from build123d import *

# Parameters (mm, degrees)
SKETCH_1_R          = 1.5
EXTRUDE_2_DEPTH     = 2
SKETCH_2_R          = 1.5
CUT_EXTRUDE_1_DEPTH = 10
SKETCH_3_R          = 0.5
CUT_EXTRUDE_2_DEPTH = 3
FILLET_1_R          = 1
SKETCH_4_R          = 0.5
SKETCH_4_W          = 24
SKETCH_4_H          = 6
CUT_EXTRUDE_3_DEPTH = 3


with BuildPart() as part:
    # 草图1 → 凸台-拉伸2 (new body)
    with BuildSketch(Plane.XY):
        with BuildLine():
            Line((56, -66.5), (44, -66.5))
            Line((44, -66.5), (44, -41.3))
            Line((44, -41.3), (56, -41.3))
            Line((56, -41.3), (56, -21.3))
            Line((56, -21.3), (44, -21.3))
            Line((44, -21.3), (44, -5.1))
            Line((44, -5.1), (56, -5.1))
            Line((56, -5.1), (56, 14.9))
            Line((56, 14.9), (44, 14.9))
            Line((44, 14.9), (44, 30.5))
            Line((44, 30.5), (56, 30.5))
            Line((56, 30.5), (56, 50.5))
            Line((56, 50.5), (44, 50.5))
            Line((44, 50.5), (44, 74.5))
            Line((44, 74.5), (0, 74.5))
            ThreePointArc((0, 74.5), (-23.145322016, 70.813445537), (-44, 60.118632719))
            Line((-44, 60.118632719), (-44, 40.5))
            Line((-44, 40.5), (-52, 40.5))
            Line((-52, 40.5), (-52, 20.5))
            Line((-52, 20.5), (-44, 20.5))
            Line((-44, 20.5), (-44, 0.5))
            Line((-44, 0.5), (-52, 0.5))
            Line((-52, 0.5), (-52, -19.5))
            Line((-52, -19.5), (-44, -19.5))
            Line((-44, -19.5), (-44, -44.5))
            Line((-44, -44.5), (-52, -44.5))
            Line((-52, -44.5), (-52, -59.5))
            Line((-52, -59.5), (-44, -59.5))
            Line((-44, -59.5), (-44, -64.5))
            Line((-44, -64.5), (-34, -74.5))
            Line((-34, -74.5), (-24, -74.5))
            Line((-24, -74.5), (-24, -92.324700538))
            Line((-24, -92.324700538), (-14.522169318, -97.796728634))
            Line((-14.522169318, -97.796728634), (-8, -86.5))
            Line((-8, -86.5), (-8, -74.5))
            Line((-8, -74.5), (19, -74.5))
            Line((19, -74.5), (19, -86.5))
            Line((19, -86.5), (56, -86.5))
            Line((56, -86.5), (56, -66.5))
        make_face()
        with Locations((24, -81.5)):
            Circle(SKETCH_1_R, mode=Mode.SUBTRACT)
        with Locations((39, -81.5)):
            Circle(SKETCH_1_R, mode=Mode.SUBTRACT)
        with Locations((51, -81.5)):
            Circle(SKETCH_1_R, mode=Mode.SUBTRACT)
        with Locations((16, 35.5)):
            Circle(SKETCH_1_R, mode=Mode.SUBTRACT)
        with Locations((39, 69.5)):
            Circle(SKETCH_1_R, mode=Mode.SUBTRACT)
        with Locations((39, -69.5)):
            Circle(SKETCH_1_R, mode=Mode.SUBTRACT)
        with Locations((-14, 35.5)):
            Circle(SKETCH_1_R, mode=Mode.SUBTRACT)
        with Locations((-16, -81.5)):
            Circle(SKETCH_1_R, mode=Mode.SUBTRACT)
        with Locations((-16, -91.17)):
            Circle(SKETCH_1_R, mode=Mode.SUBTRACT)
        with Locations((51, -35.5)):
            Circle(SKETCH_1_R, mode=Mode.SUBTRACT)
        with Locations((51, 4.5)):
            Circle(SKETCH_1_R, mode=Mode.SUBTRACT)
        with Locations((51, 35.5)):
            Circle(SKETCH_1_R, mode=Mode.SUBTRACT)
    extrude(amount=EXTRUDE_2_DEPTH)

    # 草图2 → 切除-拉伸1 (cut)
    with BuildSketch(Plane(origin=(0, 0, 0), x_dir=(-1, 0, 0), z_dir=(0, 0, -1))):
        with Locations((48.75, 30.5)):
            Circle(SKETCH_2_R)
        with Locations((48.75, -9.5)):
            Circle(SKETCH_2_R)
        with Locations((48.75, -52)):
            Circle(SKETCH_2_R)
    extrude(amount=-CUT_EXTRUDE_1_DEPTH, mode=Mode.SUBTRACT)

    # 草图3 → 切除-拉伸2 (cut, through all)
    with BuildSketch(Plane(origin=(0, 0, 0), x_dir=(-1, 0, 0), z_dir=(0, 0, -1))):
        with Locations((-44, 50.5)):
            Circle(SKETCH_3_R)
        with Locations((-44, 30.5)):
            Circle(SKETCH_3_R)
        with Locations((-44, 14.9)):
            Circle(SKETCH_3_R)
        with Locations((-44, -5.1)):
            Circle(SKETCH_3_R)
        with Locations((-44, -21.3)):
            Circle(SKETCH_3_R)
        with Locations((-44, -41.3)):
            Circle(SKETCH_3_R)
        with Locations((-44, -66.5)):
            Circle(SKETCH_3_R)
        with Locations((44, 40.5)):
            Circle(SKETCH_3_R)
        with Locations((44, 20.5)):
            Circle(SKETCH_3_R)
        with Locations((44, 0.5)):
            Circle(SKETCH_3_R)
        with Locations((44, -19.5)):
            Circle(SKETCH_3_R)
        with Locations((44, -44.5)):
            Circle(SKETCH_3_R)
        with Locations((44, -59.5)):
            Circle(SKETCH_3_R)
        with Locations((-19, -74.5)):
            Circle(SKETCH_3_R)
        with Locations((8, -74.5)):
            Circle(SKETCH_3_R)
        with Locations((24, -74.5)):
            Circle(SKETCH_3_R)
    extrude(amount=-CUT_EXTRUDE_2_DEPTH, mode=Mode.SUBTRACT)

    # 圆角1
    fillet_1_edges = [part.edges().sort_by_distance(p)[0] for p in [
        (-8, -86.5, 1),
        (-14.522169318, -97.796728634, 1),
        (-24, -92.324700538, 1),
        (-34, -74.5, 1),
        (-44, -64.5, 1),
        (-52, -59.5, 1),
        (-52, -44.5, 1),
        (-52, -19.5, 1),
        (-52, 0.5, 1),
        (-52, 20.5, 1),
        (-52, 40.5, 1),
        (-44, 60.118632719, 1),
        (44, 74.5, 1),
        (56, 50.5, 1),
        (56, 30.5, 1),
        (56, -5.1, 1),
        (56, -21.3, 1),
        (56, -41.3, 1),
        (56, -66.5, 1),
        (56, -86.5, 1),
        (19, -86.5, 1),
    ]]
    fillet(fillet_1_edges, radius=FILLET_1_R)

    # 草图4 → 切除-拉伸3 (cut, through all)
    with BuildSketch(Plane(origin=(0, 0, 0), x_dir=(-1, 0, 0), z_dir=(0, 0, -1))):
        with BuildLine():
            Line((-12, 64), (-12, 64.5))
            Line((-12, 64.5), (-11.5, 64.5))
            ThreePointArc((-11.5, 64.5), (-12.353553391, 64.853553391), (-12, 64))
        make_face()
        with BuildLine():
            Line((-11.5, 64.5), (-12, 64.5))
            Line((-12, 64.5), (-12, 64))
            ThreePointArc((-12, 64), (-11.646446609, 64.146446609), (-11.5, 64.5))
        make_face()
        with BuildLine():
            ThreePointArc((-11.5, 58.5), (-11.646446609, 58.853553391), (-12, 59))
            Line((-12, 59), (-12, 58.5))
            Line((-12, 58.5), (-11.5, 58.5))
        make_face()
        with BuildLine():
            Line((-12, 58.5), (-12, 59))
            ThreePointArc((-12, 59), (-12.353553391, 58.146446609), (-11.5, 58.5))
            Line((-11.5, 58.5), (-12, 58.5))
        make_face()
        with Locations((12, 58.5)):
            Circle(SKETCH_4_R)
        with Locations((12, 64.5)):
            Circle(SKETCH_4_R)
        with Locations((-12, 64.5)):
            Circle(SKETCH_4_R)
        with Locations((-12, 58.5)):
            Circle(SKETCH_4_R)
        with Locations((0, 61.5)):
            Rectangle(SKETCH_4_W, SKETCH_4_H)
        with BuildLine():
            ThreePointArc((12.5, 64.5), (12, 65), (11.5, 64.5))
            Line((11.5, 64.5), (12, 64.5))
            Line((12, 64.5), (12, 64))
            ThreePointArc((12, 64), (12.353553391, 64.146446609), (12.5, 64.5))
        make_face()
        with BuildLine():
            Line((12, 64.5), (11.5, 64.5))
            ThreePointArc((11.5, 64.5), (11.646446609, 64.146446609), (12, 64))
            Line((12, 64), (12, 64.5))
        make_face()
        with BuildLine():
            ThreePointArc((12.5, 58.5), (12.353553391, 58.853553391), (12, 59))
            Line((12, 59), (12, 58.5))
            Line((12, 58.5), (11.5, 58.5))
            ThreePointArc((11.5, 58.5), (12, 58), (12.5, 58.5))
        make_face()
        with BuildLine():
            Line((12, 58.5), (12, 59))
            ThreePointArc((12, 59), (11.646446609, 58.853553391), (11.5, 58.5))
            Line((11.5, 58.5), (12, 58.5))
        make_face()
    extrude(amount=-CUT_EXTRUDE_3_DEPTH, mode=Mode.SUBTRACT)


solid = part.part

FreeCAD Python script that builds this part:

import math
import FreeCAD as App
import Part
import Sketcher
Q = App.Units.Quantity


def edges_at(feature, points):
    """Names of the edges that pass closest to the given points."""
    edges = feature.Shape.Edges
    near = lambda p: min(range(len(edges)), key=lambda i: edges[i].distToShape(Part.Vertex(*p))[0])
    return sorted({f"Edge{near(p) + 1}" for p in points})

doc = App.newDocument("Part")
body = doc.addObject("PartDesign::Body", "Body")

# Sketch on XY plane
sketch1 = body.newObject("Sketcher::SketchObject", "Sketch")
sketch1.AttachmentSupport = (doc.getObject("XY_Plane"), [""])
sketch1.MapMode = "FlatFace"
sketch1.addGeometry(Part.LineSegment(App.Vector(56, -66.5, 0), App.Vector(44, -66.5, 0)), False)
sketch1.addGeometry(Part.LineSegment(App.Vector(44, -66.5, 0), App.Vector(44, -41.3, 0)), False)
sketch1.addGeometry(Part.LineSegment(App.Vector(44, -41.3, 0), App.Vector(56, -41.3, 0)), False)
sketch1.addGeometry(Part.LineSegment(App.Vector(56, -41.3, 0), App.Vector(56, -21.3, 0)), False)
sketch1.addGeometry(Part.LineSegment(App.Vector(56, -21.3, 0), App.Vector(44, -21.3, 0)), False)
sketch1.addGeometry(Part.LineSegment(App.Vector(44, -21.3, 0), App.Vector(44, -5.1, 0)), False)
sketch1.addGeometry(Part.LineSegment(App.Vector(44, -5.1, 0), App.Vector(56, -5.1, 0)), False)
sketch1.addGeometry(Part.LineSegment(App.Vector(56, -5.1, 0), App.Vector(56, 14.9, 0)), False)
sketch1.addGeometry(Part.LineSegment(App.Vector(56, 14.9, 0), App.Vector(44, 14.9, 0)), False)
sketch1.addGeometry(Part.LineSegment(App.Vector(44, 14.9, 0), App.Vector(44, 30.5, 0)), False)
sketch1.addGeometry(Part.LineSegment(App.Vector(44, 30.5, 0), App.Vector(56, 30.5, 0)), False)
sketch1.addGeometry(Part.LineSegment(App.Vector(56, 30.5, 0), App.Vector(56, 50.5, 0)), False)
sketch1.addGeometry(Part.LineSegment(App.Vector(56, 50.5, 0), App.Vector(44, 50.5, 0)), False)
sketch1.addGeometry(Part.LineSegment(App.Vector(44, 50.5, 0), App.Vector(44, 74.5, 0)), False)
sketch1.addGeometry(Part.LineSegment(App.Vector(44, 74.5, 0), App.Vector(0, 74.5, 0)), False)
sketch1.addGeometry(Part.ArcOfCircle(Part.Circle(App.Vector(0, 0, 0), App.Vector(0, 0, 1), 74.5), math.radians(90), math.radians(126.199884)), False)
sketch1.addGeometry(Part.LineSegment(App.Vector(-44, 60.118633, 0), App.Vector(-44, 40.5, 0)), False)
sketch1.addGeometry(Part.LineSegment(App.Vector(-44, 40.5, 0), App.Vector(-52, 40.5, 0)), False)
sketch1.addGeometry(Part.LineSegment(App.Vector(-52, 40.5, 0), App.Vector(-52, 20.5, 0)), False)
sketch1.addGeometry(Part.LineSegment(App.Vector(-52, 20.5, 0), App.Vector(-44, 20.5, 0)), False)
sketch1.addGeometry(Part.LineSegment(App.Vector(-44, 20.5, 0), App.Vector(-44, 0.5, 0)), False)
sketch1.addGeometry(Part.LineSegment(App.Vector(-44, 0.5, 0), App.Vector(-52, 0.5, 0)), False)
sketch1.addGeometry(Part.LineSegment(App.Vector(-52, 0.5, 0), App.Vector(-52, -19.5, 0)), False)
sketch1.addGeometry(Part.LineSegment(App.Vector(-52, -19.5, 0), App.Vector(-44, -19.5, 0)), False)
sketch1.addGeometry(Part.LineSegment(App.Vector(-44, -19.5, 0), App.Vector(-44, -44.5, 0)), False)
sketch1.addGeometry(Part.LineSegment(App.Vector(-44, -44.5, 0), App.Vector(-52, -44.5, 0)), False)
sketch1.addGeometry(Part.LineSegment(App.Vector(-52, -44.5, 0), App.Vector(-52, -59.5, 0)), False)
sketch1.addGeometry(Part.LineSegment(App.Vector(-52, -59.5, 0), App.Vector(-44, -59.5, 0)), False)
sketch1.addGeometry(Part.LineSegment(App.Vector(-44, -59.5, 0), App.Vector(-44, -64.5, 0)), False)
sketch1.addGeometry(Part.LineSegment(App.Vector(-44, -64.5, 0), App.Vector(-34, -74.5, 0)), False)
sketch1.addGeometry(Part.LineSegment(App.Vector(-34, -74.5, 0), App.Vector(-24, -74.5, 0)), False)
sketch1.addGeometry(Part.LineSegment(App.Vector(-24, -74.5, 0), App.Vector(-24, -92.324701, 0)), False)
sketch1.addGeometry(Part.LineSegment(App.Vector(-24, -92.324701, 0), App.Vector(-14.522169, -97.796729, 0)), False)
sketch1.addGeometry(Part.LineSegment(App.Vector(-14.522169, -97.796729, 0), App.Vector(-8, -86.5, 0)), False)
sketch1.addGeometry(Part.LineSegment(App.Vector(-8, -86.5, 0), App.Vector(-8, -74.5, 0)), False)
sketch1.addGeometry(Part.LineSegment(App.Vector(-8, -74.5, 0), App.Vector(19, -74.5, 0)), False)
sketch1.addGeometry(Part.LineSegment(App.Vector(19, -74.5, 0), App.Vector(19, -86.5, 0)), False)
sketch1.addGeometry(Part.LineSegment(App.Vector(19, -86.5, 0), App.Vector(56, -86.5, 0)), False)
sketch1.addGeometry(Part.LineSegment(App.Vector(56, -86.5, 0), App.Vector(56, -66.5, 0)), False)
sketch1.addGeometry(Part.Circle(App.Vector(-16, -91.17, 0), App.Vector(0, 0, 1), 1.5), False)
sketch1.addGeometry(Part.Circle(App.Vector(-16, -81.5, 0), App.Vector(0, 0, 1), 1.5), False)
sketch1.addGeometry(Part.Circle(App.Vector(24, -81.5, 0), App.Vector(0, 0, 1), 1.5), False)
sketch1.addGeometry(Part.Circle(App.Vector(39, -81.5, 0), App.Vector(0, 0, 1), 1.5), False)
sketch1.addGeometry(Part.Circle(App.Vector(51, -81.5, 0), App.Vector(0, 0, 1), 1.5), False)
sketch1.addGeometry(Part.Circle(App.Vector(39, -69.5, 0), App.Vector(0, 0, 1), 1.5), False)
sketch1.addGeometry(Part.Circle(App.Vector(51, -35.5, 0), App.Vector(0, 0, 1), 1.5), False)
sketch1.addGeometry(Part.Circle(App.Vector(-14, 35.5, 0), App.Vector(0, 0, 1), 1.5), False)
sketch1.addGeometry(Part.Circle(App.Vector(16, 35.5, 0), App.Vector(0, 0, 1), 1.5), False)
sketch1.addGeometry(Part.Circle(App.Vector(51, 4.5, 0), App.Vector(0, 0, 1), 1.5), False)
sketch1.addGeometry(Part.Circle(App.Vector(51, 35.5, 0), App.Vector(0, 0, 1), 1.5), False)
sketch1.addGeometry(Part.Circle(App.Vector(39, 69.5, 0), App.Vector(0, 0, 1), 1.5), False)
sketch1.addConstraint(Sketcher.Constraint("Coincident", 0, 2, 1, 1))
sketch1.addConstraint(Sketcher.Constraint("Coincident", 1, 2, 2, 1))
sketch1.addConstraint(Sketcher.Constraint("Coincident", 2, 2, 3, 1))
sketch1.addConstraint(Sketcher.Constraint("Coincident", 3, 2, 4, 1))
sketch1.addConstraint(Sketcher.Constraint("Coincident", 4, 2, 5, 1))
sketch1.addConstraint(Sketcher.Constraint("Coincident", 5, 2, 6, 1))
sketch1.addConstraint(Sketcher.Constraint("Coincident", 6, 2, 7, 1))
sketch1.addConstraint(Sketcher.Constraint("Coincident", 7, 2, 8, 1))
sketch1.addConstraint(Sketcher.Constraint("Coincident", 8, 2, 9, 1))
sketch1.addConstraint(Sketcher.Constraint("Coincident", 9, 2, 10, 1))
sketch1.addConstraint(Sketcher.Constraint("Coincident", 10, 2, 11, 1))
sketch1.addConstraint(Sketcher.Constraint("Coincident", 11, 2, 12, 1))
sketch1.addConstraint(Sketcher.Constraint("Coincident", 12, 2, 13, 1))
sketch1.addConstraint(Sketcher.Constraint("Coincident", 13, 2, 14, 1))
sketch1.addConstraint(Sketcher.Constraint("Tangent", 14, 2, 15, 1))
sketch1.addConstraint(Sketcher.Constraint("Coincident", 15, 2, 16, 1))
sketch1.addConstraint(Sketcher.Constraint("Coincident", 16, 2, 17, 1))
sketch1.addConstraint(Sketcher.Constraint("Coincident", 17, 2, 18, 1))
sketch1.addConstraint(Sketcher.Constraint("Coincident", 18, 2, 19, 1))
sketch1.addConstraint(Sketcher.Constraint("Coincident", 19, 2, 20, 1))
sketch1.addConstraint(Sketcher.Constraint("Coincident", 20, 2, 21, 1))
sketch1.addConstraint(Sketcher.Constraint("Coincident", 21, 2, 22, 1))
sketch1.addConstraint(Sketcher.Constraint("Coincident", 22, 2, 23, 1))
sketch1.addConstraint(Sketcher.Constraint("Coincident", 23, 2, 24, 1))
sketch1.addConstraint(Sketcher.Constraint("Coincident", 24, 2, 25, 1))
sketch1.addConstraint(Sketcher.Constraint("Coincident", 25, 2, 26, 1))
sketch1.addConstraint(Sketcher.Constraint("Coincident", 26, 2, 27, 1))
sketch1.addConstraint(Sketcher.Constraint("Coincident", 27, 2, 28, 1))
sketch1.addConstraint(Sketcher.Constraint("Coincident", 28, 2, 29, 1))
sketch1.addConstraint(Sketcher.Constraint("Coincident", 29, 2, 30, 1))
sketch1.addConstraint(Sketcher.Constraint("Coincident", 30, 2, 31, 1))
sketch1.addConstraint(Sketcher.Constraint("Coincident", 31, 2, 32, 1))
sketch1.addConstraint(Sketcher.Constraint("Coincident", 32, 2, 33, 1))
sketch1.addConstraint(Sketcher.Constraint("Coincident", 33, 2, 34, 1))
sketch1.addConstraint(Sketcher.Constraint("Coincident", 34, 2, 35, 1))
sketch1.addConstraint(Sketcher.Constraint("Coincident", 35, 2, 36, 1))
sketch1.addConstraint(Sketcher.Constraint("Coincident", 36, 2, 37, 1))
sketch1.addConstraint(Sketcher.Constraint("Coincident", 37, 2, 38, 1))
sketch1.addConstraint(Sketcher.Constraint("Coincident", 38, 2, 0, 1))
sketch1.addConstraint(Sketcher.Constraint("Horizontal", 0))
sketch1.addConstraint(Sketcher.Constraint("Vertical", 1))
sketch1.addConstraint(Sketcher.Constraint("Horizontal", 2))
sketch1.addConstraint(Sketcher.Constraint("Vertical", 3))
sketch1.addConstraint(Sketcher.Constraint("Horizontal", 4))
sketch1.addConstraint(Sketcher.Constraint("Vertical", 5))
sketch1.addConstraint(Sketcher.Constraint("Horizontal", 6))
sketch1.addConstraint(Sketcher.Constraint("Vertical", 7))
sketch1.addConstraint(Sketcher.Constraint("Horizontal", 8))
sketch1.addConstraint(Sketcher.Constraint("Vertical", 9))
sketch1.addConstraint(Sketcher.Constraint("Horizontal", 10))
sketch1.addConstraint(Sketcher.Constraint("Vertical", 11))
sketch1.addConstraint(Sketcher.Constraint("Horizontal", 12))
sketch1.addConstraint(Sketcher.Constraint("Vertical", 13))
sketch1.addConstraint(Sketcher.Constraint("Horizontal", 14))
sketch1.addConstraint(Sketcher.Constraint("Vertical", 16))
sketch1.addConstraint(Sketcher.Constraint("Horizontal", 17))
sketch1.addConstraint(Sketcher.Constraint("Vertical", 18))
sketch1.addConstraint(Sketcher.Constraint("Horizontal", 19))
sketch1.addConstraint(Sketcher.Constraint("Vertical", 20))
sketch1.addConstraint(Sketcher.Constraint("Horizontal", 21))
sketch1.addConstraint(Sketcher.Constraint("Vertical", 22))
sketch1.addConstraint(Sketcher.Constraint("Horizontal", 23))
sketch1.addConstraint(Sketcher.Constraint("Vertical", 24))
sketch1.addConstraint(Sketcher.Constraint("Horizontal", 25))
sketch1.addConstraint(Sketcher.Constraint("Vertical", 26))
sketch1.addConstraint(Sketcher.Constraint("Horizontal", 27))
sketch1.addConstraint(Sketcher.Constraint("Vertical", 28))
sketch1.addConstraint(Sketcher.Constraint("Horizontal", 30))
sketch1.addConstraint(Sketcher.Constraint("Vertical", 31))
sketch1.addConstraint(Sketcher.Constraint("Vertical", 34))
sketch1.addConstraint(Sketcher.Constraint("Horizontal", 35))
sketch1.addConstraint(Sketcher.Constraint("Vertical", 36))
sketch1.addConstraint(Sketcher.Constraint("Horizontal", 37))
sketch1.addConstraint(Sketcher.Constraint("Vertical", 38))
sketch1.addConstraint(Sketcher.Constraint("Coincident", 15, 3, -1, 1))
sketch1.addConstraint(Sketcher.Constraint("Equal", 39, 40))
sketch1.addConstraint(Sketcher.Constraint("Equal", 40, 41))
sketch1.addConstraint(Sketcher.Constraint("Equal", 41, 42))
sketch1.addConstraint(Sketcher.Constraint("Equal", 42, 43))
sketch1.addConstraint(Sketcher.Constraint("Equal", 43, 44))
sketch1.addConstraint(Sketcher.Constraint("Equal", 44, 45))
sketch1.addConstraint(Sketcher.Constraint("Equal", 45, 46))
sketch1.addConstraint(Sketcher.Constraint("Equal", 46, 47))
sketch1.addConstraint(Sketcher.Constraint("Equal", 47, 48))
sketch1.addConstraint(Sketcher.Constraint("Equal", 48, 49))
sketch1.addConstraint(Sketcher.Constraint("Equal", 49, 50))
sketch1.addConstraint(Sketcher.Constraint("Symmetric", 45, 3, 49, 3, -1))
sketch1.addConstraint(Sketcher.Constraint("Symmetric", 44, 3, 50, 3, -1))
sketch1.addConstraint(Sketcher.Constraint("Perpendicular", 32, 33))
sketch1.addConstraint(Sketcher.Constraint("Horizontal", 40, 3, 41, 3))
sketch1.addConstraint(Sketcher.Constraint("Horizontal", 41, 3, 42, 3))
sketch1.addConstraint(Sketcher.Constraint("Horizontal", 42, 3, 43, 3))
sketch1.addConstraint(Sketcher.Constraint("Horizontal", 46, 3, 47, 3))
sketch1.addConstraint(Sketcher.Constraint("Horizontal", 47, 3, 49, 3))
sketch1.addConstraint(Sketcher.Constraint("Horizontal", 30, 2, 34, 2))
sketch1.addConstraint(Sketcher.Constraint("Horizontal", 33, 2, 36, 2))
sketch1.addConstraint(Sketcher.Constraint("Vertical", 39, 3, 40, 3))
sketch1.addConstraint(Sketcher.Constraint("Vertical", 42, 3, 44, 3))
sketch1.addConstraint(Sketcher.Constraint("Vertical", 43, 3, 45, 3))
sketch1.addConstraint(Sketcher.Constraint("Vertical", 45, 3, 48, 3))
sketch1.addConstraint(Sketcher.Constraint("Vertical", 1, 2, 4, 2))
sketch1.addConstraint(Sketcher.Constraint("Vertical", 3, 2, 6, 2))
sketch1.addConstraint(Sketcher.Constraint("Vertical", 5, 2, 8, 2))
sketch1.addConstraint(Sketcher.Constraint("Vertical", 7, 2, 10, 2))
sketch1.addConstraint(Sketcher.Constraint("Vertical", 9, 2, 12, 2))
sketch1.addConstraint(Sketcher.Constraint("Vertical", 16, 2, 19, 2))
sketch1.addConstraint(Sketcher.Constraint("Vertical", 18, 2, 21, 2))
sketch1.addConstraint(Sketcher.Constraint("Vertical", 20, 2, 23, 2))
sketch1.addConstraint(Sketcher.Constraint("Vertical", 22, 2, 25, 2))
sketch1.addConstraint(Sketcher.Constraint("Vertical", 24, 2, 27, 2))
sketch1.addConstraint(Sketcher.Constraint("Vertical", 11, 2, 37, 2))
sketch1.addConstraint(Sketcher.Constraint("Equal", 3, 7))
sketch1.addConstraint(Sketcher.Constraint("Equal", 7, 11))
sketch1.addConstraint(Sketcher.Constraint("Equal", 11, 18))
sketch1.addConstraint(Sketcher.Constraint("Equal", 18, 20))
sketch1.addConstraint(Sketcher.Constraint("Equal", 20, 22))
sketch1.addConstraint(Sketcher.Constraint("Equal", 12, 34))
sketch1.addConstraint(Sketcher.Constraint("Equal", 22, 38))
sketch1.addConstraint(Sketcher.Constraint("Diameter", 39, 3.0))
sketch1.addConstraint(Sketcher.Constraint("Radius", 15, 74.5))
sketch1.addConstraint(Sketcher.Constraint("DistanceX", 0, 2, 0, 1, 12.0))
sketch1.addConstraint(Sketcher.Constraint("DistanceX", 14, 2, 14, 1, 44.0))
sketch1.addConstraint(Sketcher.Constraint("DistanceX", 17, 2, 17, 1, 8.0))
sketch1.addConstraint(Sketcher.Constraint("DistanceX", 30, 1, 30, 2, 10.0))
sketch1.addConstraint(Sketcher.Constraint("DistanceX", 35, 1, 35, 2, 27.0))
sketch1.addConstraint(Sketcher.Constraint("DistanceX", 37, 1, 37, 2, 37.0))
sketch1.addConstraint(Sketcher.Constraint("DistanceY", 3, 1, 3, 2, 20.0))
sketch1.addConstraint(Sketcher.Constraint("DistanceY", 13, 1, 13, 2, 24.0))
sketch1.addConstraint(Sketcher.Constraint("DistanceY", 24, 2, 24, 1, 25.0))
sketch1.addConstraint(Sketcher.Constraint("DistanceY", 26, 2, 26, 1, 15.0))
sketch1.addConstraint(Sketcher.Constraint("DistanceY", 28, 2, 28, 1, 5.0))
sketch1.addConstraint(Sketcher.Constraint("Angle", 29, Q("-45 deg")))
sketch1.addConstraint(Sketcher.Constraint("Angle", 32, Q("-30 deg")))
sketch1.addConstraint(Sketcher.Constraint("DistanceY", 1, 1, 1, 2, 25.2))
sketch1.addConstraint(Sketcher.Constraint("DistanceY", 5, 1, 5, 2, 16.2))
sketch1.addConstraint(Sketcher.Constraint("DistanceY", 9, 1, 9, 2, 15.6))
sketch1.addConstraint(Sketcher.Constraint("DistanceX", 39, 3, -1, 1, 16.0))
sketch1.addConstraint(Sketcher.Constraint("DistanceX", -1, 1, 41, 3, 24.0))
sketch1.addConstraint(Sketcher.Constraint("DistanceX", -1, 1, 42, 3, 39.0))
sketch1.addConstraint(Sketcher.Constraint("DistanceX", -1, 1, 43, 3, 51.0))
sketch1.addConstraint(Sketcher.Constraint("DistanceX", 46, 3, -1, 1, 14.0))
sketch1.addConstraint(Sketcher.Constraint("DistanceX", -1, 1, 47, 3, 16.0))
sketch1.addConstraint(Sketcher.Constraint("DistanceX", 15, 2, -1, 1, 44.0))
sketch1.addConstraint(Sketcher.Constraint("DistanceX", 29, 2, -1, 1, 34.0))
sketch1.addConstraint(Sketcher.Constraint("DistanceY", 42, 3, 44, 3, 12.0))
sketch1.addConstraint(Sketcher.Constraint("DistanceY", 44, 3, 45, 3, 34.0))
sketch1.addConstraint(Sketcher.Constraint("DistanceY", 45, 3, 46, 3, 71.0))
sketch1.addConstraint(Sketcher.Constraint("DistanceY", 45, 3, 48, 3, 40.0))
sketch1.addConstraint(Sketcher.Constraint("DistanceY", 39, 3, -1, 1, 91.17))
sketch1.addConstraint(Sketcher.Constraint("DistanceY", 31, 2, 31, 1, 17.824701))
pad1 = body.newObject("PartDesign::Pad", "Pad")
pad1.Profile = sketch1
pad1.Length = 2

# Sketch on XY plane
sketch2 = body.newObject("Sketcher::SketchObject", "Sketch001")
sketch2.AttachmentSupport = (doc.getObject("XY_Plane"), [""])
sketch2.MapMode = "FlatFace"
sketch2.addGeometry(Part.Circle(App.Vector(-48.75, 30.5, 0), App.Vector(0, 0, 1), 1.5), False)
sketch2.addGeometry(Part.Circle(App.Vector(-48.75, -9.5, 0), App.Vector(0, 0, 1), 1.5), False)
sketch2.addGeometry(Part.Circle(App.Vector(-48.75, -52, 0), App.Vector(0, 0, 1), 1.5), False)
sketch2.addConstraint(Sketcher.Constraint("Equal", 0, 1))
sketch2.addConstraint(Sketcher.Constraint("Equal", 1, 2))
sketch2.addConstraint(Sketcher.Constraint("Vertical", 0, 3, 1, 3))
sketch2.addConstraint(Sketcher.Constraint("Vertical", 1, 3, 2, 3))
sketch2.addConstraint(Sketcher.Constraint("Diameter", 0, 3.0))
sketch2.addConstraint(Sketcher.Constraint("DistanceY", 2, 3, -1, 1, 52.0))
sketch2.addConstraint(Sketcher.Constraint("DistanceY", 1, 3, 0, 3, 40.0))
sketch2.addConstraint(Sketcher.Constraint("DistanceY", -1, 1, 0, 3, 30.5))
sketch2.addConstraint(Sketcher.Constraint("DistanceX", 0, 3, -1, 1, 48.75))
pocket1 = body.newObject("PartDesign::Pocket", "Pocket")
pocket1.Profile = sketch2
pocket1.Length = 10
pocket1.Reversed = True

# Sketch on XY plane
sketch3 = body.newObject("Sketcher::SketchObject", "Sketch002")
sketch3.AttachmentSupport = (doc.getObject("XY_Plane"), [""])
sketch3.MapMode = "FlatFace"
sketch3.addGeometry(Part.Circle(App.Vector(44, 50.5, 0), App.Vector(0, 0, 1), 0.5), False)
sketch3.addGeometry(Part.Circle(App.Vector(44, 30.5, 0), App.Vector(0, 0, 1), 0.5), False)
sketch3.addGeometry(Part.Circle(App.Vector(44, 14.9, 0), App.Vector(0, 0, 1), 0.5), False)
sketch3.addGeometry(Part.Circle(App.Vector(44, -5.1, 0), App.Vector(0, 0, 1), 0.5), False)
sketch3.addGeometry(Part.Circle(App.Vector(44, -21.3, 0), App.Vector(0, 0, 1), 0.5), False)
sketch3.addGeometry(Part.Circle(App.Vector(44, -41.3, 0), App.Vector(0, 0, 1), 0.5), False)
sketch3.addGeometry(Part.Circle(App.Vector(44, -66.5, 0), App.Vector(0, 0, 1), 0.5), False)
sketch3.addGeometry(Part.Circle(App.Vector(-44, 40.5, 0), App.Vector(0, 0, 1), 0.5), False)
sketch3.addGeometry(Part.Circle(App.Vector(-44, 20.5, 0), App.Vector(0, 0, 1), 0.5), False)
sketch3.addGeometry(Part.Circle(App.Vector(-44, 0.5, 0), App.Vector(0, 0, 1), 0.5), False)
sketch3.addGeometry(Part.Circle(App.Vector(-44, -19.5, 0), App.Vector(0, 0, 1), 0.5), False)
sketch3.addGeometry(Part.Circle(App.Vector(-44, -44.5, 0), App.Vector(0, 0, 1), 0.5), False)
sketch3.addGeometry(Part.Circle(App.Vector(-44, -59.5, 0), App.Vector(0, 0, 1), 0.5), False)
sketch3.addGeometry(Part.Circle(App.Vector(19, -74.5, 0), App.Vector(0, 0, 1), 0.5), False)
sketch3.addGeometry(Part.Circle(App.Vector(-8, -74.5, 0), App.Vector(0, 0, 1), 0.5), False)
sketch3.addGeometry(Part.Circle(App.Vector(-24, -74.5, 0), App.Vector(0, 0, 1), 0.5), False)
sketch3.addConstraint(Sketcher.Constraint("Equal", 0, 1))
sketch3.addConstraint(Sketcher.Constraint("Equal", 1, 2))
sketch3.addConstraint(Sketcher.Constraint("Equal", 2, 3))
sketch3.addConstraint(Sketcher.Constraint("Equal", 3, 4))
sketch3.addConstraint(Sketcher.Constraint("Equal", 4, 5))
sketch3.addConstraint(Sketcher.Constraint("Equal", 5, 6))
sketch3.addConstraint(Sketcher.Constraint("Equal", 6, 7))
sketch3.addConstraint(Sketcher.Constraint("Equal", 7, 8))
sketch3.addConstraint(Sketcher.Constraint("Equal", 8, 9))
sketch3.addConstraint(Sketcher.Constraint("Equal", 9, 10))
sketch3.addConstraint(Sketcher.Constraint("Equal", 10, 11))
sketch3.addConstraint(Sketcher.Constraint("Equal", 11, 12))
sketch3.addConstraint(Sketcher.Constraint("Equal", 12, 13))
sketch3.addConstraint(Sketcher.Constraint("Equal", 13, 14))
sketch3.addConstraint(Sketcher.Constraint("Equal", 14, 15))
sketch3.addConstraint(Sketcher.Constraint("Horizontal", 13, 3, 14, 3))
sketch3.addConstraint(Sketcher.Constraint("Horizontal", 14, 3, 15, 3))
sketch3.addConstraint(Sketcher.Constraint("Vertical", 0, 3, 1, 3))
sketch3.addConstraint(Sketcher.Constraint("Vertical", 1, 3, 2, 3))
sketch3.addConstraint(Sketcher.Constraint("Vertical", 2, 3, 3, 3))
sketch3.addConstraint(Sketcher.Constraint("Vertical", 3, 3, 4, 3))
sketch3.addConstraint(Sketcher.Constraint("Vertical", 4, 3, 5, 3))
sketch3.addConstraint(Sketcher.Constraint("Vertical", 5, 3, 6, 3))
sketch3.addConstraint(Sketcher.Constraint("Vertical", 7, 3, 8, 3))
sketch3.addConstraint(Sketcher.Constraint("Vertical", 8, 3, 9, 3))
sketch3.addConstraint(Sketcher.Constraint("Vertical", 9, 3, 10, 3))
sketch3.addConstraint(Sketcher.Constraint("Vertical", 10, 3, 11, 3))
sketch3.addConstraint(Sketcher.Constraint("Vertical", 11, 3, 12, 3))
sketch3.addConstraint(Sketcher.Constraint("Diameter", 0, 1.0))
sketch3.addConstraint(Sketcher.Constraint("DistanceX", -1, 1, 0, 3, 44.0))
sketch3.addConstraint(Sketcher.Constraint("DistanceX", 7, 3, -1, 1, 44.0))
sketch3.addConstraint(Sketcher.Constraint("DistanceX", -1, 1, 13, 3, 19.0))
sketch3.addConstraint(Sketcher.Constraint("DistanceX", 14, 3, -1, 1, 8.0))
sketch3.addConstraint(Sketcher.Constraint("DistanceX", 15, 3, -1, 1, 24.0))
sketch3.addConstraint(Sketcher.Constraint("DistanceY", 1, 3, 0, 3, 20.0))
sketch3.addConstraint(Sketcher.Constraint("DistanceY", 3, 3, 2, 3, 20.0))
sketch3.addConstraint(Sketcher.Constraint("DistanceY", 5, 3, 4, 3, 20.0))
sketch3.addConstraint(Sketcher.Constraint("DistanceY", 6, 3, 1, 3, 97.0))
sketch3.addConstraint(Sketcher.Constraint("DistanceY", 7, 3, 0, 3, 10.0))
sketch3.addConstraint(Sketcher.Constraint("DistanceY", 8, 3, 7, 3, 20.0))
sketch3.addConstraint(Sketcher.Constraint("DistanceY", 9, 3, 8, 3, 20.0))
sketch3.addConstraint(Sketcher.Constraint("DistanceY", 10, 3, 9, 3, 20.0))
sketch3.addConstraint(Sketcher.Constraint("DistanceY", 11, 3, 10, 3, 25.0))
sketch3.addConstraint(Sketcher.Constraint("DistanceY", 12, 3, 11, 3, 15.0))
sketch3.addConstraint(Sketcher.Constraint("DistanceY", 13, 3, 6, 3, 8.0))
sketch3.addConstraint(Sketcher.Constraint("DistanceY", -1, 1, 0, 3, 50.5))
sketch3.addConstraint(Sketcher.Constraint("DistanceY", -1, 1, 2, 3, 14.9))
sketch3.addConstraint(Sketcher.Constraint("DistanceY", 4, 3, -1, 1, 21.3))
pocket2 = body.newObject("PartDesign::Pocket", "Pocket001")
pocket2.Profile = sketch3
pocket2.Type = "ThroughAll"
pocket2.Reversed = True
doc.recompute()

fillet = body.newObject("PartDesign::Fillet", "Fillet")
fillet.Base = (pocket2, edges_at(pocket2, [
    (-8, -86.5, 1),
    (-14.522, -97.797, 1),
    (-24, -92.325, 1),
    (-34, -74.5, 1),
    (-44, -64.5, 1),
    (-52, -59.5, 1),
    (-52, -44.5, 1),
    (-52, -19.5, 1),
    (-52, 0.5, 1),
    (-52, 20.5, 1),
    (-52, 40.5, 1),
    (-44, 60.119, 1),
    (44, 74.5, 1),
    (56, 50.5, 1),
    (56, 30.5, 1),
    (56, -5.1, 1),
    (56, -21.3, 1),
    (56, -41.3, 1),
    (56, -66.5, 1),
    (56, -86.5, 1),
    (19, -86.5, 1),
]))
fillet.Radius = 1

# Sketch on XY plane
sketch4 = body.newObject("Sketcher::SketchObject", "Sketch003")
sketch4.AttachmentSupport = (doc.getObject("XY_Plane"), [""])
sketch4.MapMode = "FlatFace"
sketch4.addGeometry(Part.LineSegment(App.Vector(-11.5, 64.5, 0), App.Vector(11.5, 64.5, 0)), False)
sketch4.addGeometry(Part.ArcOfCircle(Part.Circle(App.Vector(12, 64.5, 0), App.Vector(0, 0, 1), 0.5), math.radians(-90), math.radians(180)), False)
sketch4.addGeometry(Part.LineSegment(App.Vector(12, 64, 0), App.Vector(12, 59, 0)), False)
sketch4.addGeometry(Part.ArcOfCircle(Part.Circle(App.Vector(12, 58.5, 0), App.Vector(0, 0, 1), 0.5), math.radians(180), math.radians(450)), False)
sketch4.addGeometry(Part.LineSegment(App.Vector(11.5, 58.5, 0), App.Vector(-11.5, 58.5, 0)), False)
sketch4.addGeometry(Part.ArcOfCircle(Part.Circle(App.Vector(-12, 58.5, 0), App.Vector(0, 0, 1), 0.5), math.radians(90), math.radians(360)), False)
sketch4.addGeometry(Part.LineSegment(App.Vector(-12, 59, 0), App.Vector(-12, 64, 0)), False)
sketch4.addGeometry(Part.ArcOfCircle(Part.Circle(App.Vector(-12, 64.5, 0), App.Vector(0, 0, 1), 0.5), math.radians(0), math.radians(270)), False)
sketch4.addConstraint(Sketcher.Constraint("Coincident", 0, 2, 1, 2))
sketch4.addConstraint(Sketcher.Constraint("Coincident", 1, 1, 2, 1))
sketch4.addConstraint(Sketcher.Constraint("Coincident", 2, 2, 3, 2))
sketch4.addConstraint(Sketcher.Constraint("Coincident", 3, 1, 4, 1))
sketch4.addConstraint(Sketcher.Constraint("Coincident", 4, 2, 5, 2))
sketch4.addConstraint(Sketcher.Constraint("Coincident", 5, 1, 6, 1))
sketch4.addConstraint(Sketcher.Constraint("Coincident", 6, 2, 7, 2))
sketch4.addConstraint(Sketcher.Constraint("Coincident", 7, 1, 0, 1))
sketch4.addConstraint(Sketcher.Constraint("Horizontal", 0))
sketch4.addConstraint(Sketcher.Constraint("Vertical", 2))
sketch4.addConstraint(Sketcher.Constraint("Horizontal", 4))
sketch4.addConstraint(Sketcher.Constraint("Vertical", 6))
sketch4.addConstraint(Sketcher.Constraint("Equal", 1, 3))
sketch4.addConstraint(Sketcher.Constraint("Equal", 3, 5))
sketch4.addConstraint(Sketcher.Constraint("Equal", 5, 7))
sketch4.addConstraint(Sketcher.Constraint("Symmetric", 3, 3, 5, 3, -2))
sketch4.addConstraint(Sketcher.Constraint("Symmetric", 1, 3, 7, 3, -2))
sketch4.addConstraint(Sketcher.Constraint("Horizontal", 7, 3, 0, 2))
sketch4.addConstraint(Sketcher.Constraint("Horizontal", 5, 3, 3, 1))
sketch4.addConstraint(Sketcher.Constraint("Vertical", 1, 3, 3, 3))
sketch4.addConstraint(Sketcher.Constraint("Vertical", 3, 3, 1, 1))
sketch4.addConstraint(Sketcher.Constraint("Vertical", 7, 3, 5, 1))
sketch4.addConstraint(Sketcher.Constraint("Radius", 1, 0.5))
sketch4.addConstraint(Sketcher.Constraint("DistanceX", 0, 1, 0, 2, 23.0))
sketch4.addConstraint(Sketcher.Constraint("DistanceY", 2, 2, 2, 1, 5.0))
sketch4.addConstraint(Sketcher.Constraint("DistanceY", -1, 1, 1, 1, 64.0))
pocket3 = body.newObject("PartDesign::Pocket", "Pocket002")
pocket3.Profile = sketch4
pocket3.Type = "ThroughAll"
pocket3.Reversed = True

doc.recompute()
